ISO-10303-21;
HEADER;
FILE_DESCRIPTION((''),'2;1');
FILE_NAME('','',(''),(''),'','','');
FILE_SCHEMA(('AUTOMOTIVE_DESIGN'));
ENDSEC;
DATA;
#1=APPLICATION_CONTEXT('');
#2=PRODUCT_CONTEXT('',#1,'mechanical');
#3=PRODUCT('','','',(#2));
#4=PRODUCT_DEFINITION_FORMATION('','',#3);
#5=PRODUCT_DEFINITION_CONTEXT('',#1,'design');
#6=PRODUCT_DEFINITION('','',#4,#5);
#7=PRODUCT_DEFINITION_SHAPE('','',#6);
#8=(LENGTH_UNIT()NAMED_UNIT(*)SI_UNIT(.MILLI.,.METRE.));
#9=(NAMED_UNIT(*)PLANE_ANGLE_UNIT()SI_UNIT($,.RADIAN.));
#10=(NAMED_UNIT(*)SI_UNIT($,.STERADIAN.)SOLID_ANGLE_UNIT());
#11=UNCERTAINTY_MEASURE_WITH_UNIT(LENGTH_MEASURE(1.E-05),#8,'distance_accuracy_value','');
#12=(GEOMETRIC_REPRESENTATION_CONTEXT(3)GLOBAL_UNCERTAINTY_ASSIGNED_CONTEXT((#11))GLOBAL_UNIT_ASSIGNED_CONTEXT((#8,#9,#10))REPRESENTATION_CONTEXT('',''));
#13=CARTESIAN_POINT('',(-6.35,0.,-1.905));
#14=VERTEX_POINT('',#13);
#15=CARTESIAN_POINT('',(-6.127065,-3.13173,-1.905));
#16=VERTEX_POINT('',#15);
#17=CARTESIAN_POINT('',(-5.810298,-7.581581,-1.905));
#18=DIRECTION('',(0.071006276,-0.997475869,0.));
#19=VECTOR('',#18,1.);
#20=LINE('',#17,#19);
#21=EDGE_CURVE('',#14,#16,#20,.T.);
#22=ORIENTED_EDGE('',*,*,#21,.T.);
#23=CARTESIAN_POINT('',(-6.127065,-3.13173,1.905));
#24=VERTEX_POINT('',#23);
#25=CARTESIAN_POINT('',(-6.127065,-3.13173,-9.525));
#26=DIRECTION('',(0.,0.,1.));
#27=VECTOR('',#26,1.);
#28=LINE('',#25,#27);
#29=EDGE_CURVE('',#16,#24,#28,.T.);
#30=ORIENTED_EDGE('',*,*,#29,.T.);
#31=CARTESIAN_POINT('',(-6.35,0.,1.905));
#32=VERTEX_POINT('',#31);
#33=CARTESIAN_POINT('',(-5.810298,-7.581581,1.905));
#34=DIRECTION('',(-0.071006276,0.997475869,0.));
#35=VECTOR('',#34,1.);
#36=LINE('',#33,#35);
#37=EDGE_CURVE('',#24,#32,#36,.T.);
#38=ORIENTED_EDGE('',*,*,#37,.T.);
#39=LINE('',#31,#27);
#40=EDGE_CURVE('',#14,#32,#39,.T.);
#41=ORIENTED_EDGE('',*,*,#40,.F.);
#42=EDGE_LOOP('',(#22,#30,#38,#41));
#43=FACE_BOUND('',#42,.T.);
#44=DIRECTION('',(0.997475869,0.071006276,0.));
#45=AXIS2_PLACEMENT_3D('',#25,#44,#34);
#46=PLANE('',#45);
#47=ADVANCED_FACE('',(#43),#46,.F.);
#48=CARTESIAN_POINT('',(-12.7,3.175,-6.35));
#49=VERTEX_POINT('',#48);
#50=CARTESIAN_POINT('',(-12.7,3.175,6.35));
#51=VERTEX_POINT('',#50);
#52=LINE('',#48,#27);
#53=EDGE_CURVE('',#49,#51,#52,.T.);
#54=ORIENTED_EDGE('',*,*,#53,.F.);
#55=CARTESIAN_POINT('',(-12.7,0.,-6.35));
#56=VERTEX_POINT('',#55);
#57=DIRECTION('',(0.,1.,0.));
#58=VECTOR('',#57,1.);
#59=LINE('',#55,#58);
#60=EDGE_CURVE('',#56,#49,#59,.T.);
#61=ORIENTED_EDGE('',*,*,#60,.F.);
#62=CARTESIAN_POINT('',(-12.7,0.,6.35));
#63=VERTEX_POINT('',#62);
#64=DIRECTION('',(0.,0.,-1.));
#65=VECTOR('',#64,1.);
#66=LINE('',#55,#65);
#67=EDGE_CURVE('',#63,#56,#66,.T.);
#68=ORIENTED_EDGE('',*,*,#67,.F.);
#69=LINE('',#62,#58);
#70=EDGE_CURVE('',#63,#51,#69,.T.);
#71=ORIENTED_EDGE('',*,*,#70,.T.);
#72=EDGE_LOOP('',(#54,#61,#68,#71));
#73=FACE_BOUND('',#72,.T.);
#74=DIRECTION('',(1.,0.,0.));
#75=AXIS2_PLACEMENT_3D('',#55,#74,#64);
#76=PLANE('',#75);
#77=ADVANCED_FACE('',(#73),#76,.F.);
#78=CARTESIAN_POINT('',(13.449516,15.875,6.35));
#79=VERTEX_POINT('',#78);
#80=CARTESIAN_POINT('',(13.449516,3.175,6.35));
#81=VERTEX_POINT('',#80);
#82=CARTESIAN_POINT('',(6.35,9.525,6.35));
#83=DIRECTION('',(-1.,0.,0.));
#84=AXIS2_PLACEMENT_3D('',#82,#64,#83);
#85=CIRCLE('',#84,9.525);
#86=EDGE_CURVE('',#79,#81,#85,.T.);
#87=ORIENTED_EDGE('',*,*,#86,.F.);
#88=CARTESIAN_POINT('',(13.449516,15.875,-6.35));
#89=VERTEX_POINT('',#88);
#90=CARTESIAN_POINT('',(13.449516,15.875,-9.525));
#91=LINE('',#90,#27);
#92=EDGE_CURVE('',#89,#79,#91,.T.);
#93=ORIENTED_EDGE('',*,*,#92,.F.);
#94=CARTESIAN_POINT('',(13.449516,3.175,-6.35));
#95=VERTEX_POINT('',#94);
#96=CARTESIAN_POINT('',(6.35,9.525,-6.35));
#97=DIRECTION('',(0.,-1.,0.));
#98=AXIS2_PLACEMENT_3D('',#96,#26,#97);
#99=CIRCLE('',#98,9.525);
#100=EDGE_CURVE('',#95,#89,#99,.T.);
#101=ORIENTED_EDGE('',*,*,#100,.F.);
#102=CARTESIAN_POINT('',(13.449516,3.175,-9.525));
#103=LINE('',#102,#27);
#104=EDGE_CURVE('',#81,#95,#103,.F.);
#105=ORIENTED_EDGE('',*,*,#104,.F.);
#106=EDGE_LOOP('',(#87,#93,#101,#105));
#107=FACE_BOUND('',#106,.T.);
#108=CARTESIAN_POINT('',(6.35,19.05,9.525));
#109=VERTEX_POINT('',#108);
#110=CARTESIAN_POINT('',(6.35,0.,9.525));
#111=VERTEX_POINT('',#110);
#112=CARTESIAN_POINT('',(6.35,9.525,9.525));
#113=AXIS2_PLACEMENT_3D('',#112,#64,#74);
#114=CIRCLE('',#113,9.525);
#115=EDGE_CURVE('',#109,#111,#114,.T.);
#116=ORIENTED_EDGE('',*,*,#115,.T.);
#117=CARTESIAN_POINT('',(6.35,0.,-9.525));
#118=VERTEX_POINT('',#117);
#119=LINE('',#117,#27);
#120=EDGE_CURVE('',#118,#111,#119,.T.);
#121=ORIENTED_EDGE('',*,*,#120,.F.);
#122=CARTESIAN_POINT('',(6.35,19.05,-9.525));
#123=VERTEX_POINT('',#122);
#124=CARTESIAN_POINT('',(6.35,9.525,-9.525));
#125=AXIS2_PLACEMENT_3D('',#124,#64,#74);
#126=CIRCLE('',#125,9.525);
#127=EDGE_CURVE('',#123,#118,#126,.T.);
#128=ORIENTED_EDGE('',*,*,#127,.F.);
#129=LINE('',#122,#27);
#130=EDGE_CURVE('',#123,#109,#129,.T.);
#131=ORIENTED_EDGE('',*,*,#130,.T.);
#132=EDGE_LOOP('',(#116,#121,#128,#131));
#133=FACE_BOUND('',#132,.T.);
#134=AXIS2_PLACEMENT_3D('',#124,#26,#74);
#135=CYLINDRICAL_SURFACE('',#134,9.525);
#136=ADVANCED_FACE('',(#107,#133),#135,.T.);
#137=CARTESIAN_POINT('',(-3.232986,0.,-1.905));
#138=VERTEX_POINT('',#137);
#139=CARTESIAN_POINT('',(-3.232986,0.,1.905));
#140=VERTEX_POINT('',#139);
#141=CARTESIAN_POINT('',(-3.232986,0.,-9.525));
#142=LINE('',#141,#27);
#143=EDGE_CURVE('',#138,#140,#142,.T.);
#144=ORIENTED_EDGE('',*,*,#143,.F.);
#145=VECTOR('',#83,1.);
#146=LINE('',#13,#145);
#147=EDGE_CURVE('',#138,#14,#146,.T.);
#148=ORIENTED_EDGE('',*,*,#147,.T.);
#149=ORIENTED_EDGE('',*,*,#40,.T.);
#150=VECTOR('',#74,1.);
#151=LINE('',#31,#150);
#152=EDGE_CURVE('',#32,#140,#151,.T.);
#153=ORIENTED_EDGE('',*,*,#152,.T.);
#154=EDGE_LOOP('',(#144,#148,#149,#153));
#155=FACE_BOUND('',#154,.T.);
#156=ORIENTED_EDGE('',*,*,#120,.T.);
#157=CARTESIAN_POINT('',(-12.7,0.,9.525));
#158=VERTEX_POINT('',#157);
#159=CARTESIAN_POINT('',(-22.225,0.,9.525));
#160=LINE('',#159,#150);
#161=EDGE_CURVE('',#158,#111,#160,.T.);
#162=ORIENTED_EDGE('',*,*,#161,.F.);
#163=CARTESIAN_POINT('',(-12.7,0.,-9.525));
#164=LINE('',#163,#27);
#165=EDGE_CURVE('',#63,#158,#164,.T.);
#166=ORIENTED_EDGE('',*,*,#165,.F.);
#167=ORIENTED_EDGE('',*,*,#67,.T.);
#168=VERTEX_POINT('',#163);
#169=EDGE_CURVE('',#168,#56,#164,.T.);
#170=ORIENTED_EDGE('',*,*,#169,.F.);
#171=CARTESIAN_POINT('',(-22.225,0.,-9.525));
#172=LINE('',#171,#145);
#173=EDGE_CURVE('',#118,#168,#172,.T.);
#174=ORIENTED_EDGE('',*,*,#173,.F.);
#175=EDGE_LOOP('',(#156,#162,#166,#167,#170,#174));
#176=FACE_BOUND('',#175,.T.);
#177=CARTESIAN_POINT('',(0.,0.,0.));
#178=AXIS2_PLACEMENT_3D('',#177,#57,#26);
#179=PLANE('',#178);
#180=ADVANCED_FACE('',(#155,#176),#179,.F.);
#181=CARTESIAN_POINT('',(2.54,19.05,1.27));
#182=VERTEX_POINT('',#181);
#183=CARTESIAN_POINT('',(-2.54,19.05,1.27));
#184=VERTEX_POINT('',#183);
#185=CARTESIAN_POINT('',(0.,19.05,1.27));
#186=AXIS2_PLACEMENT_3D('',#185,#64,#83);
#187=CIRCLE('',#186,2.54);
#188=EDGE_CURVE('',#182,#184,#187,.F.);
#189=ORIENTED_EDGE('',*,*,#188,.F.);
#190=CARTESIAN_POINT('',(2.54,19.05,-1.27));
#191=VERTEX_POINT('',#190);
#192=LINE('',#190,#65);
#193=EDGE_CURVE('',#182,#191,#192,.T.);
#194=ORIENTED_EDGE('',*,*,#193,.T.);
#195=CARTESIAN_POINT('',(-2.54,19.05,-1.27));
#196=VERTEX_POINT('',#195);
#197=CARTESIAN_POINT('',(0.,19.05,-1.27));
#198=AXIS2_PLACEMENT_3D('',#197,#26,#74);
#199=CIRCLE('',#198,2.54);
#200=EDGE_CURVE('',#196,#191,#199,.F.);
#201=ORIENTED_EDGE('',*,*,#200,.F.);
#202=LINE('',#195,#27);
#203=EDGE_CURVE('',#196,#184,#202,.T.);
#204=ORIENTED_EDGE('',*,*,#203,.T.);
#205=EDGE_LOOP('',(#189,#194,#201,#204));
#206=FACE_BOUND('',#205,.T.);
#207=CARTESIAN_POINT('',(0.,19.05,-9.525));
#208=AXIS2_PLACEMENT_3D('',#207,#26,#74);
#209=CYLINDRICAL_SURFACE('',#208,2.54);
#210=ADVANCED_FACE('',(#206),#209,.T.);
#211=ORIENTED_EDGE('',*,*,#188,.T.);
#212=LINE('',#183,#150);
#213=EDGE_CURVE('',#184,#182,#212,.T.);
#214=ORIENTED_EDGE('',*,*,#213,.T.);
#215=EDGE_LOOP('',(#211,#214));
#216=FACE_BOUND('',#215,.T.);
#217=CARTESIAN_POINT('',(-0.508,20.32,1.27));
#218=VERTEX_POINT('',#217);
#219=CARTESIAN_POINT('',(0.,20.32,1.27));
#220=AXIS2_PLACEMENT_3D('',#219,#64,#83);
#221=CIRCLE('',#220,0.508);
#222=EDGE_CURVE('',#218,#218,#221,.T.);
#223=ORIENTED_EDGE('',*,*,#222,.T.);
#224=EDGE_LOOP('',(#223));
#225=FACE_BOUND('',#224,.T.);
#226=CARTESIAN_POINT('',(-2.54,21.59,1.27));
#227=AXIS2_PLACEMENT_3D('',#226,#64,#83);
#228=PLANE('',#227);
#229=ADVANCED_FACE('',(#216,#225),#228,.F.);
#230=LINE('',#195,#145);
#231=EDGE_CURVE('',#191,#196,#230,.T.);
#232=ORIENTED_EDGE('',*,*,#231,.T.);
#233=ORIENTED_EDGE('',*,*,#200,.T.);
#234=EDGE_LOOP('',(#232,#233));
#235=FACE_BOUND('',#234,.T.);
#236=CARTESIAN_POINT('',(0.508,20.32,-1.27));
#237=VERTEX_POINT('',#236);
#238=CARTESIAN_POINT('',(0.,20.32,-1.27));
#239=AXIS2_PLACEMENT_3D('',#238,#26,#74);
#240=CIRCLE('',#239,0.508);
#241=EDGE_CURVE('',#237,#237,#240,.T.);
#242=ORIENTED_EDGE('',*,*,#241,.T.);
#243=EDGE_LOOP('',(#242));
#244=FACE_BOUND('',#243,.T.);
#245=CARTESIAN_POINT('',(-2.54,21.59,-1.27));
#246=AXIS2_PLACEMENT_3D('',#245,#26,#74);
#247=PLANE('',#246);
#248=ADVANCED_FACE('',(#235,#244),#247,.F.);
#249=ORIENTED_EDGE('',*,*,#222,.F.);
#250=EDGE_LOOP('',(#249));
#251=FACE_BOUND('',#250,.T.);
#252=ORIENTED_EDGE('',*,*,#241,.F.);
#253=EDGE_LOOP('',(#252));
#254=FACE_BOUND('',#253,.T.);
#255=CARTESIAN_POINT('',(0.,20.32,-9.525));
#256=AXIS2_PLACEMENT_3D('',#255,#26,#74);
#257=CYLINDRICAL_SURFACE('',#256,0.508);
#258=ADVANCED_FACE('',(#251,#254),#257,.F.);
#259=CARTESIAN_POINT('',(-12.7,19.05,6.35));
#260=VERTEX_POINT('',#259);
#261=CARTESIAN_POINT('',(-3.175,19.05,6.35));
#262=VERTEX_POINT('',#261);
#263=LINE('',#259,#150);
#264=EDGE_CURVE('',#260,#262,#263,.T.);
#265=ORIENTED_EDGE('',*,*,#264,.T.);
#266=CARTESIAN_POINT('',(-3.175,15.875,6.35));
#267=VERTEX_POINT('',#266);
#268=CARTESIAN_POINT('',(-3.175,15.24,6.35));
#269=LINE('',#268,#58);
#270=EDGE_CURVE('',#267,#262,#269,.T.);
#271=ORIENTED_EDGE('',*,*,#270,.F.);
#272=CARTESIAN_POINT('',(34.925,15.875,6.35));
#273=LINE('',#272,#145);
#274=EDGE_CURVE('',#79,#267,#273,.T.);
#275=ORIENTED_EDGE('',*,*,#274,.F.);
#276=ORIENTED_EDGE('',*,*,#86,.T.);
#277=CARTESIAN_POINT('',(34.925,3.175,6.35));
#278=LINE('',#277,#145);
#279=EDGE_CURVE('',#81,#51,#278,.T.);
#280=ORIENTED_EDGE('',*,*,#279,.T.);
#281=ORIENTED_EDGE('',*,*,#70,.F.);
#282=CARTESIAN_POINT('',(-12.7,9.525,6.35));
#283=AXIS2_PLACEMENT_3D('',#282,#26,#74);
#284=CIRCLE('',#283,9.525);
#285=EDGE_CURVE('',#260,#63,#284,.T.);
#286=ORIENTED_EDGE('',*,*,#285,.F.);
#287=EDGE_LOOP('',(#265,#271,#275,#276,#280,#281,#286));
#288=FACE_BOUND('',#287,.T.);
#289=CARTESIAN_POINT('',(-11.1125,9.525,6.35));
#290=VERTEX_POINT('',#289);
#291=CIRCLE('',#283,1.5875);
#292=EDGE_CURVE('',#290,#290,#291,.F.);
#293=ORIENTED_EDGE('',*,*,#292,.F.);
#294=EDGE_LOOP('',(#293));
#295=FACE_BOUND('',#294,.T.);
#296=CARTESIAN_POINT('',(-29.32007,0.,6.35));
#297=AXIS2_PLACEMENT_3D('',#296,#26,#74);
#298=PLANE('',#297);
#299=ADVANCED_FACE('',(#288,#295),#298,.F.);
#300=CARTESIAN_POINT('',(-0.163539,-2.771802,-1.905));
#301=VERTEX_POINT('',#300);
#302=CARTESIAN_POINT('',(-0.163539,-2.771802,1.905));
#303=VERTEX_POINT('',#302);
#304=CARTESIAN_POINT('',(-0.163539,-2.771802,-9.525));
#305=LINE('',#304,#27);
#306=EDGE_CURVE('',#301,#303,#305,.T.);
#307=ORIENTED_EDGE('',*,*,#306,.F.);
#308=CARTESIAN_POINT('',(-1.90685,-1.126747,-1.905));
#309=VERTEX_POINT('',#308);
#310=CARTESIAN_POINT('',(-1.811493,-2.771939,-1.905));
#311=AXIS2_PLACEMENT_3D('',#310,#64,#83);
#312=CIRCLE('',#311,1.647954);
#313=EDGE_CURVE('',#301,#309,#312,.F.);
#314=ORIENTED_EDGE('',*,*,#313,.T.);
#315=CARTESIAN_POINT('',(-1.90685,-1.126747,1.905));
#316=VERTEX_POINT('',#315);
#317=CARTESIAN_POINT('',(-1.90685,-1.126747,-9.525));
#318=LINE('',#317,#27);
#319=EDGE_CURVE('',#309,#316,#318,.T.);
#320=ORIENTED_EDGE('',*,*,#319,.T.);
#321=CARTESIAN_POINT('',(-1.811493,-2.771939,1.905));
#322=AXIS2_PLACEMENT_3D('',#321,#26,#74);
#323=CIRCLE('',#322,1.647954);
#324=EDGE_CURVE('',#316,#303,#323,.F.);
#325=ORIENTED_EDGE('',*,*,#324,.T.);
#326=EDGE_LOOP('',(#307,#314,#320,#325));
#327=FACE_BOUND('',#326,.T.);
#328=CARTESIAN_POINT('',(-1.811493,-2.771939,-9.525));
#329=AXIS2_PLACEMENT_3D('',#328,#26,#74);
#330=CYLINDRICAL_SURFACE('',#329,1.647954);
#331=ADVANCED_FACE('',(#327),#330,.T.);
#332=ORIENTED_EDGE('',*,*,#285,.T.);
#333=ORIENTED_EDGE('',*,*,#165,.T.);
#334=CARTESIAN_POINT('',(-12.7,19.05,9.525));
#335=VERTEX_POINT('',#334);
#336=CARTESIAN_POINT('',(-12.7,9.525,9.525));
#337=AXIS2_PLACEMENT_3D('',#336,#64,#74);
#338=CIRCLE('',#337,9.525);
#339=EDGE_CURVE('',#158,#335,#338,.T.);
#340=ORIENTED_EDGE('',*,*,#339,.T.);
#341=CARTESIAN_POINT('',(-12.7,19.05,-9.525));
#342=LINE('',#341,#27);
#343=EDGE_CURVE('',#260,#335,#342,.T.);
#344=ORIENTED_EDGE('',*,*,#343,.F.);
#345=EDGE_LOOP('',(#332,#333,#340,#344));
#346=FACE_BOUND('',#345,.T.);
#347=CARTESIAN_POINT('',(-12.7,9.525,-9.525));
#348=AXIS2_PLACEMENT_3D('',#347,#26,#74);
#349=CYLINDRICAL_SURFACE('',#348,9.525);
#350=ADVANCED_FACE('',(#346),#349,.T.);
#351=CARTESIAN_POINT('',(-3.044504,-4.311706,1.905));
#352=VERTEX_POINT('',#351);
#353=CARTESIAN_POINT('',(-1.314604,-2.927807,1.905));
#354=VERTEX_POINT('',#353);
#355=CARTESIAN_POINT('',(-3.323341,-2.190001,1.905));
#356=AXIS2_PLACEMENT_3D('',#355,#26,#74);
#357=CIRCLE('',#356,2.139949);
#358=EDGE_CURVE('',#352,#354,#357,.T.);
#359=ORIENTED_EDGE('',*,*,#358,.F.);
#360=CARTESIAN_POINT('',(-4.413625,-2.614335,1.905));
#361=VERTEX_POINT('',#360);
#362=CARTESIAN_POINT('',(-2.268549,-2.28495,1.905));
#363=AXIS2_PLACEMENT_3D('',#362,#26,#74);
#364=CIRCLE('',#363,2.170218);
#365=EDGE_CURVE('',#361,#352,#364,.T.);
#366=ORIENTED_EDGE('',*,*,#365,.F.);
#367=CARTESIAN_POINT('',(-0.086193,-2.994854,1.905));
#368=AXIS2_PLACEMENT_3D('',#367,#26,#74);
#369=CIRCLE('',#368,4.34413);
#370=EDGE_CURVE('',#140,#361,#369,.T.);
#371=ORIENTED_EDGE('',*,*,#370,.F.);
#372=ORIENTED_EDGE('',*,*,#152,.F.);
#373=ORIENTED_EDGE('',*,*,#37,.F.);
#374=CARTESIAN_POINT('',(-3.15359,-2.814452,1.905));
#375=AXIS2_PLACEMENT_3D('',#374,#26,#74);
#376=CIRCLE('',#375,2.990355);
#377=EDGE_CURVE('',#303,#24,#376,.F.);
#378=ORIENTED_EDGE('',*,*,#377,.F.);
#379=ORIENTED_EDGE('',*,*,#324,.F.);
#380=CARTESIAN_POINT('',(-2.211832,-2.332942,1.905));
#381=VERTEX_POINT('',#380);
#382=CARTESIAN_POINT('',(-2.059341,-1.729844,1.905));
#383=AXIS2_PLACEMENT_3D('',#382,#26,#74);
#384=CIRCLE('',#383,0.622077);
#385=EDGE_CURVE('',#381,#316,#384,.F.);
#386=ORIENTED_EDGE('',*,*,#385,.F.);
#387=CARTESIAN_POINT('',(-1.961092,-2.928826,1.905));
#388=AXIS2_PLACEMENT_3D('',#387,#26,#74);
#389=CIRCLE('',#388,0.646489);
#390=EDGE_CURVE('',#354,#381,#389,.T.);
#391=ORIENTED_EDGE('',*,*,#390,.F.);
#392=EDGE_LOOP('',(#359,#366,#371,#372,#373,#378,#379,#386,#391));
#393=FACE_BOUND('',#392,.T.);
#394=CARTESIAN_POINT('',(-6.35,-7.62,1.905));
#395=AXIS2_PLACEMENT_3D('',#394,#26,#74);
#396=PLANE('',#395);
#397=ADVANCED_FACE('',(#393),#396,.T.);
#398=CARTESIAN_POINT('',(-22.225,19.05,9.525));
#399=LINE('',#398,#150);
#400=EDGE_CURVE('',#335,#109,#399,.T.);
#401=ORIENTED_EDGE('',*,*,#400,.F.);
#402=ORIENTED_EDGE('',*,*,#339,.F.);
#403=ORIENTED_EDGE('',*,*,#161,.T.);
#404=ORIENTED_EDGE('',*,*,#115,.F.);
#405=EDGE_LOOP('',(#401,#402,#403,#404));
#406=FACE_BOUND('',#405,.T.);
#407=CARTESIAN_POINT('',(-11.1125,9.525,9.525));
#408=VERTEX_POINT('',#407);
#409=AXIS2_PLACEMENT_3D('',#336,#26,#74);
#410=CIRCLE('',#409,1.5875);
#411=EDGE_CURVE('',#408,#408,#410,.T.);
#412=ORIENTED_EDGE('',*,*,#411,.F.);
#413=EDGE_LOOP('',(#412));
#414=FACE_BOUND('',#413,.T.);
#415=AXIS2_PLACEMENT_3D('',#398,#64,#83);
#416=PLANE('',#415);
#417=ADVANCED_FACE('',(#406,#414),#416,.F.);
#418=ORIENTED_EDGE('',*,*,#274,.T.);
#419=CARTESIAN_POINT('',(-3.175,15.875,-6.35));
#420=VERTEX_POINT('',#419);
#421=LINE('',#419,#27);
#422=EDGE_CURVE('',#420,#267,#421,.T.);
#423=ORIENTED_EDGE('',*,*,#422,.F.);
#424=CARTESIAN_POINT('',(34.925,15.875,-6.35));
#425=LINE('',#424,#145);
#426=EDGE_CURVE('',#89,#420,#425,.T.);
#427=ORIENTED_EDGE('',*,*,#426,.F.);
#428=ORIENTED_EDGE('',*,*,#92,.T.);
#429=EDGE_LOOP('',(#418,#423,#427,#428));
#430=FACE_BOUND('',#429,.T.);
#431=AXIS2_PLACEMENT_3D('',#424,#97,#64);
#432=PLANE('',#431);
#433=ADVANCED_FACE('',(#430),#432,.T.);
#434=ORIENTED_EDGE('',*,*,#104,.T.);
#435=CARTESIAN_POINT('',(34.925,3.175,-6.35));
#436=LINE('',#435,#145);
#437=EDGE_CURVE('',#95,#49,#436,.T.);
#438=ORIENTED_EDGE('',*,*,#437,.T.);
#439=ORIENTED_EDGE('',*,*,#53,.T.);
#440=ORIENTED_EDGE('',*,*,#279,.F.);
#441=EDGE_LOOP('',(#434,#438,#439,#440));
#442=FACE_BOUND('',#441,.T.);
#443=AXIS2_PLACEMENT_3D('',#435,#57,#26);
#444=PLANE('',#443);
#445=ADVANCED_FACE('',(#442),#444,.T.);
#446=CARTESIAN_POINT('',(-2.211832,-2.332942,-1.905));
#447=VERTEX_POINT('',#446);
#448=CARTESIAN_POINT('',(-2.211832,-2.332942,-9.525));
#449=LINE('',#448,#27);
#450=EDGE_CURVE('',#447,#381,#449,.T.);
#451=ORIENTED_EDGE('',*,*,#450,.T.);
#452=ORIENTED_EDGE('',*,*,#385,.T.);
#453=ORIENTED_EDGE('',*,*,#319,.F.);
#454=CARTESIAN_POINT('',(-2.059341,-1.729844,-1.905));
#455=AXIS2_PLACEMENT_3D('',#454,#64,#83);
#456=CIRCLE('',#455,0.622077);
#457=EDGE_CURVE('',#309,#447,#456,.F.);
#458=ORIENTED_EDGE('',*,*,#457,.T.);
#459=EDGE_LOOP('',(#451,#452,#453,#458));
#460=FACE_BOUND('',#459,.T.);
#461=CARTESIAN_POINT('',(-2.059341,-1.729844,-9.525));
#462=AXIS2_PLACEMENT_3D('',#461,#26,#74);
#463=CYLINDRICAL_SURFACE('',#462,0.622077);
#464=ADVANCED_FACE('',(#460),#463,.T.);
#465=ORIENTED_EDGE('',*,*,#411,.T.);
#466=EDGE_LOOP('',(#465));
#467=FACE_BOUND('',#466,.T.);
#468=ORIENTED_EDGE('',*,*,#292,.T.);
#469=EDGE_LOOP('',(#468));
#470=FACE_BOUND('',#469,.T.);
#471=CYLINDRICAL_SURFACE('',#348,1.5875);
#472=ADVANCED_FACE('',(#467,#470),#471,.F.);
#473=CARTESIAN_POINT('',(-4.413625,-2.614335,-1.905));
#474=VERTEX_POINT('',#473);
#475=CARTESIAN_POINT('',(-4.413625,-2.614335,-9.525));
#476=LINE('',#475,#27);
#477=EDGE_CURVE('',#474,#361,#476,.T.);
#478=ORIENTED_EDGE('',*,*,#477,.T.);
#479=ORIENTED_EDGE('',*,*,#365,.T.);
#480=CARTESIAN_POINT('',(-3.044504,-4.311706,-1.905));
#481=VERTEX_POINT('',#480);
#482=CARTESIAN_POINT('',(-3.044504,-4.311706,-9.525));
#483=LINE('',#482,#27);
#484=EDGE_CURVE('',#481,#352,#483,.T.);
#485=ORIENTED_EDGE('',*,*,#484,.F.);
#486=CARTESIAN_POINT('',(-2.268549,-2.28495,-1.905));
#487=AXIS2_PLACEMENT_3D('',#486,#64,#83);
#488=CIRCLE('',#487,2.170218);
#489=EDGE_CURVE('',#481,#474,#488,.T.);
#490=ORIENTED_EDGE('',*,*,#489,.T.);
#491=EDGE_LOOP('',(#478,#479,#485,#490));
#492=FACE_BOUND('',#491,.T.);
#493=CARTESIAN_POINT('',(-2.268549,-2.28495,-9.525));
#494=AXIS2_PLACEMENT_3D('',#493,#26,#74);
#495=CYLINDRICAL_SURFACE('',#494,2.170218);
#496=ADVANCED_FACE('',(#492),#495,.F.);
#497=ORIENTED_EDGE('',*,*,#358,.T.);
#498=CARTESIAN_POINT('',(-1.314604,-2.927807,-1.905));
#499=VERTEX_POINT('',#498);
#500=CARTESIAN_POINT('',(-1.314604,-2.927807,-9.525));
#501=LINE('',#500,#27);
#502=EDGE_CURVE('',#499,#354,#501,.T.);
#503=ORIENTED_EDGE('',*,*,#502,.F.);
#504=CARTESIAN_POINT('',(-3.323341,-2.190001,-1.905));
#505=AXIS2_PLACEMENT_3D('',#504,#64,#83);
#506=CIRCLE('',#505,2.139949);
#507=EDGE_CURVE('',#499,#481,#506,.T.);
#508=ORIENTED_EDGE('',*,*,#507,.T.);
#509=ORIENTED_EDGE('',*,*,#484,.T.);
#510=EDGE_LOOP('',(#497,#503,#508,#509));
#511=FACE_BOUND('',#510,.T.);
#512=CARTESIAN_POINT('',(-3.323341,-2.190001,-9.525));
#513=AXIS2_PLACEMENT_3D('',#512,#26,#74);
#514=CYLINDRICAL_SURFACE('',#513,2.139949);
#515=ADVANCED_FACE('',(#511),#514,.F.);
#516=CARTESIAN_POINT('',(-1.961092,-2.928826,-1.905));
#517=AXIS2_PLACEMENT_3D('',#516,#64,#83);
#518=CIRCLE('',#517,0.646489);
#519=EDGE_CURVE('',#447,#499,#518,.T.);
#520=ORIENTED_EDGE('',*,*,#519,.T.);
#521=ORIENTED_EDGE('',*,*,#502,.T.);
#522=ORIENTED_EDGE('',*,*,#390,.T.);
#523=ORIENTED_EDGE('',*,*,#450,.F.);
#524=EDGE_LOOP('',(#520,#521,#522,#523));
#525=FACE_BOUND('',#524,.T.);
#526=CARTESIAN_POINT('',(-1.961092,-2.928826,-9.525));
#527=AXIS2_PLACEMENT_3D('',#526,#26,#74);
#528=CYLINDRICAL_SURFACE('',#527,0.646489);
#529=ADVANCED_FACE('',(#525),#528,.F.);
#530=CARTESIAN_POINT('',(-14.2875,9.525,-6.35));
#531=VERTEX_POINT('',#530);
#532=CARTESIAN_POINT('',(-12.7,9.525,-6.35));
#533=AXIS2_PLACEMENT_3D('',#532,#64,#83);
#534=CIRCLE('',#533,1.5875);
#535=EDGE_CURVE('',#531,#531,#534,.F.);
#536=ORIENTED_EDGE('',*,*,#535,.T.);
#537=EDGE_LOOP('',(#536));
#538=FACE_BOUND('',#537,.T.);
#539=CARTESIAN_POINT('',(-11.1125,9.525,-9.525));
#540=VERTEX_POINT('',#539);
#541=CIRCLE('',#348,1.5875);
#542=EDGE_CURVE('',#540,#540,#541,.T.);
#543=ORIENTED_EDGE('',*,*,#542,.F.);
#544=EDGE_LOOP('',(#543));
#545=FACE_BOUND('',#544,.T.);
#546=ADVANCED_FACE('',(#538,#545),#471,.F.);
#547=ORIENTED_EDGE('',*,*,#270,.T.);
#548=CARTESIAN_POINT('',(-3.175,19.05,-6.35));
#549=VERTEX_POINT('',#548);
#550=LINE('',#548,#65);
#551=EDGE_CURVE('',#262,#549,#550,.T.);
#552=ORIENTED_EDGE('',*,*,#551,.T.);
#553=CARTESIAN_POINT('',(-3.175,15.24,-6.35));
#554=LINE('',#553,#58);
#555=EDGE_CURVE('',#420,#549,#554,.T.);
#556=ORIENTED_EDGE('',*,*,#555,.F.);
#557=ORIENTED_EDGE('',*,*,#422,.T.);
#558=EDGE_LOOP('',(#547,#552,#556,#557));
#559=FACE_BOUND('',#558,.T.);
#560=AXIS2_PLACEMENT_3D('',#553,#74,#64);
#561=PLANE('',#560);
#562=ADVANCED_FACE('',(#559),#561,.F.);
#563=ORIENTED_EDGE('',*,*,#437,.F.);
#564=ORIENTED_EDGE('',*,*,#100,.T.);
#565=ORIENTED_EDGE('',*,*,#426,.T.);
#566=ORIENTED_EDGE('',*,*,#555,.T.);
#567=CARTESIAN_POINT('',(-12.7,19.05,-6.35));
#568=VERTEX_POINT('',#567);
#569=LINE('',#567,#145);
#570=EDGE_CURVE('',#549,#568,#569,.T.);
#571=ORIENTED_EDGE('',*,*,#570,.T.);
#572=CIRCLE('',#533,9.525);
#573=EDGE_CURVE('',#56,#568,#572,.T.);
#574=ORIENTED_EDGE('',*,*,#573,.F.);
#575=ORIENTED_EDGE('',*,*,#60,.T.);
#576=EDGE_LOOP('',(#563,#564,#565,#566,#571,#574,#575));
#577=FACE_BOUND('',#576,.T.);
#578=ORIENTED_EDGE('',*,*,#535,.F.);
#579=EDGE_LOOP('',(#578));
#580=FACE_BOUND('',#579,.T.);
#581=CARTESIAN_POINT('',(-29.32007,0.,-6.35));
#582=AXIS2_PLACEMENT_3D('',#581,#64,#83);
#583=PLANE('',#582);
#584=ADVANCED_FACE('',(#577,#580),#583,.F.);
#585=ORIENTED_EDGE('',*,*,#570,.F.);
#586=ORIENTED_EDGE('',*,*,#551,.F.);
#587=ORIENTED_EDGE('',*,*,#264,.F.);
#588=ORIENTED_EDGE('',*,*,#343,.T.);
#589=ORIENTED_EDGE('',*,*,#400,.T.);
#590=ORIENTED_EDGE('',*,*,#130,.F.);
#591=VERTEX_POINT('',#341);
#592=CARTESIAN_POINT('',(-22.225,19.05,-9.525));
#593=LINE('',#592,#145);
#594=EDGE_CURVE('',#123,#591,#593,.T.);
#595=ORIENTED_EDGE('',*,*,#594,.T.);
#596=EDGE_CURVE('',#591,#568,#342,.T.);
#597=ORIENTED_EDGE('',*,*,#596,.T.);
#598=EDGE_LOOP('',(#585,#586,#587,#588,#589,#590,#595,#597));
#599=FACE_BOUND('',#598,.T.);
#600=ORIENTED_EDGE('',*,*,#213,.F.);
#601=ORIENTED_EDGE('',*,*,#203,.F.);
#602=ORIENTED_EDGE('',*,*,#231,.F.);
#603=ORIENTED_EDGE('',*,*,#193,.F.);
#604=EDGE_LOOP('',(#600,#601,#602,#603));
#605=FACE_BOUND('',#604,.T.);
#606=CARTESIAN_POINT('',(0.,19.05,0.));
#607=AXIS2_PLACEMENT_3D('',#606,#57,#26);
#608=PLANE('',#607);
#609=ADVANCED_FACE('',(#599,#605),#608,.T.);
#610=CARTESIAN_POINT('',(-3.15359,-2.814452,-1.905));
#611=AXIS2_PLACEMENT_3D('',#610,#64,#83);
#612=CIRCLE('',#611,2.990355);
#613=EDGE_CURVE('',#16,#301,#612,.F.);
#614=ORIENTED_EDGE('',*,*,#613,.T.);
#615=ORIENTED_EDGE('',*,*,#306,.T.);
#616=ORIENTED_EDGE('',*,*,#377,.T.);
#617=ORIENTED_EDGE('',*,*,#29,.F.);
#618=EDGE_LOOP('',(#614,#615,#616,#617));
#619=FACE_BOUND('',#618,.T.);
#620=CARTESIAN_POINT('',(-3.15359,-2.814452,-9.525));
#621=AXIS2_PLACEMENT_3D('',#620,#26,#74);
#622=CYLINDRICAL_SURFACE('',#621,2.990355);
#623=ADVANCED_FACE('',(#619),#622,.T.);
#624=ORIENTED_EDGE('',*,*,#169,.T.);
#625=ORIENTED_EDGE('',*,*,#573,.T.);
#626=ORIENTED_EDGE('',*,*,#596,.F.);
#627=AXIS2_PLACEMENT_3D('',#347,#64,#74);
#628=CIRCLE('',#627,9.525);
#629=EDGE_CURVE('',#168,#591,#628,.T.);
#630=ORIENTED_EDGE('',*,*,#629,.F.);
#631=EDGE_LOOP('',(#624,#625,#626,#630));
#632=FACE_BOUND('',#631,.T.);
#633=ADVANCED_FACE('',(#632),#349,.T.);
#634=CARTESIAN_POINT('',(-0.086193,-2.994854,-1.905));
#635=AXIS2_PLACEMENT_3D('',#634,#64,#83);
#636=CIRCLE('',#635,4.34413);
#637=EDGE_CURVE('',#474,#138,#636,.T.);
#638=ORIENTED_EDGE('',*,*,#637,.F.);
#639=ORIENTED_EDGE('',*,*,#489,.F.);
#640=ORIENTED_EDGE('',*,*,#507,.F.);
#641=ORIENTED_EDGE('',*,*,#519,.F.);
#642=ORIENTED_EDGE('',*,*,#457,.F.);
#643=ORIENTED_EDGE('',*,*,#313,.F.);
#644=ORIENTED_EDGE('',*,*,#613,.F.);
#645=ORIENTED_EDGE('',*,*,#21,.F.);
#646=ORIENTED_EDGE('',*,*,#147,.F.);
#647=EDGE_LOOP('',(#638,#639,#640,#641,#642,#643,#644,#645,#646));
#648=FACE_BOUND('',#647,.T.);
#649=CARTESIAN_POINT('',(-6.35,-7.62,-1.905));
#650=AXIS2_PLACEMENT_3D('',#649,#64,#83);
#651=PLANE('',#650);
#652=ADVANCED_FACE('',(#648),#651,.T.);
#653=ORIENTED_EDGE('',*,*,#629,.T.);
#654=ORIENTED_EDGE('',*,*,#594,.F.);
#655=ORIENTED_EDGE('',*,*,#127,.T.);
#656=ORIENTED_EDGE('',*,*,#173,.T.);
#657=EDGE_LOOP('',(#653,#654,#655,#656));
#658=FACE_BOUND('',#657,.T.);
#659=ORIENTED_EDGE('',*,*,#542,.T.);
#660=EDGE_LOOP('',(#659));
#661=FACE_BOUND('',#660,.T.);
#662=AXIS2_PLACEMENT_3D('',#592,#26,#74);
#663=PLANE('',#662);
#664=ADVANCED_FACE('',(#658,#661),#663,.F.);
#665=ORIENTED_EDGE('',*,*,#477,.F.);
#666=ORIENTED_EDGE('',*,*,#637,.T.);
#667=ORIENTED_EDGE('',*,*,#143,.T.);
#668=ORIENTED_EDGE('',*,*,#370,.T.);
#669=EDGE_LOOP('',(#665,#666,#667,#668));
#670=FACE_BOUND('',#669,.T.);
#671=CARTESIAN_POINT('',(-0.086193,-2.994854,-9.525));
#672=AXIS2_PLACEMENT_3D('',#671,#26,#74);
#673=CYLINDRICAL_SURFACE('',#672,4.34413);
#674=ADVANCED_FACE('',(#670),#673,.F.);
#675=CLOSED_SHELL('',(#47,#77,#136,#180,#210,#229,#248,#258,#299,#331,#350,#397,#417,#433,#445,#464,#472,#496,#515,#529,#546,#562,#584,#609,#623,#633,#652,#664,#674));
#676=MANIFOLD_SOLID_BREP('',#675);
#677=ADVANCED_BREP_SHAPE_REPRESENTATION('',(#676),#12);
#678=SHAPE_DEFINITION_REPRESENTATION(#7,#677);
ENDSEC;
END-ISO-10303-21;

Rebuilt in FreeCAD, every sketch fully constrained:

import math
import FreeCAD as App
import Part
import Sketcher
Q = App.Units.Quantity

doc = App.newDocument("Part")
params = doc.addObject("Spreadsheet::Sheet", "Params")
for row, (alias, value) in enumerate([
    ("sketch1_width", "1.5 in"),
    ("sketch1_height", "0.75 in"),
    ("pad1_length", "0.75 in"),
    ("sketch2_diameter", "0.125 in"),
    ("sketch2_radius", "0.375 in"),
    ("pocket1_length", "0.75 in"),
    ("sketch3_height", "0.5 in"),
    ("pocket2_length", "0.75 in"),
    ("sketch4_width", "0.5 in"),
    ("pocket3_length", "2 in"),
    ("sketch5_height", "0.15 in"),
    ("pad2_length", "0.3 in"),
    ("pocket4_length", "0.75 in"),
    ("sketch7_width", "0.2 in"),
    ("sketch7_height", "0.1 in"),
    ("pad3_length", "0.1 in"),
    ("sketch8_radius", "0.1 in"),
    ("sketch8_diameter", "0.04 in"),
    ("pocket5_length", "0.75 in"),
    ("sketch9_height", "0.5 in"),
    ("sketch9_width", "0.375 in"),
    ("pocket6_length", "0.15 in"),
], start=1):
    params.set(f"A{row}", alias)
    params.set(f"B{row}", "=" + value)
    params.setAlias(f"B{row}", alias)

body = doc.addObject("PartDesign::Body", "Body")

# Sketch on XZ plane
sketch1 = body.newObject("Sketcher::SketchObject", "Sketch")
sketch1.AttachmentSupport = (doc.getObject("XZ_Plane"), [""])
sketch1.MapMode = "FlatFace"
sketch1.addGeometry([
    Part.LineSegment(App.Vector(-22.225, -9.525, 0), App.Vector(-22.225, 9.525, 0)),
    Part.LineSegment(App.Vector(-22.225, 9.525, 0), App.Vector(15.875, 9.525, 0)),
    Part.LineSegment(App.Vector(15.875, 9.525, 0), App.Vector(15.875, -9.525, 0)),
    Part.LineSegment(App.Vector(15.875, -9.525, 0), App.Vector(-22.225, -9.525, 0)),
], False)
sketch1.addConstraint([
    Sketcher.Constraint("Coincident", 0, 2, 1, 1),
    Sketcher.Constraint("Coincident", 1, 2, 2, 1),
    Sketcher.Constraint("Coincident", 2, 2, 3, 1),
    Sketcher.Constraint("Coincident", 3, 2, 0, 1),
    Sketcher.Constraint("Vertical", 0),
    Sketcher.Constraint("Horizontal", 1),
    Sketcher.Constraint("Vertical", 2),
    Sketcher.Constraint("Horizontal", 3),
    Sketcher.Constraint("DistanceX", 1, 1, 1, 2, Q("1.5 in")),
    Sketcher.Constraint("DistanceY", 0, 1, 0, 2, Q("0.75 in")),
    Sketcher.Constraint("DistanceX", 0, 2, -1, 1, Q("0.875 in")),
    Sketcher.Constraint("DistanceY", -1, 1, 0, 2, Q("0.375 in")),
])
sketch1.setExpression("Constraints[8]", "Params.sketch1_width")
sketch1.setExpression("Constraints[9]", "Params.sketch1_height")
pad1 = body.newObject("PartDesign::Pad", "Pad")
pad1.Profile = sketch1
pad1.setExpression("Length", "Params.pad1_length")
pad1.Reversed = True

# Sketch on XY plane
sketch2 = body.newObject("Sketcher::SketchObject", "Sketch001")
sketch2.AttachmentSupport = (doc.getObject("XY_Plane"), [""])
sketch2.MapMode = "FlatFace"
sketch2.AttachmentOffset = App.Placement(App.Vector(0, 0, 0.375 * 25.4), App.Rotation())
sketch2.addGeometry([
    Part.Circle(App.Vector(-12.7, 9.525, 0), App.Vector(0, 0, 1), 1.5875),  # 0
    Part.ArcOfCircle(Part.Circle(App.Vector(-12.7, 9.525, 0), App.Vector(0, 0, 1), 9.525), math.radians(90), math.radians(270)),  # 1
    Part.ArcOfCircle(Part.Circle(App.Vector(-21.018848, 9.525, 0), App.Vector(0, 0, 1), 12.646298), math.radians(48.867016), math.radians(311.132984)),  # 2
    Part.ArcOfCircle(Part.Circle(App.Vector(6.35, 9.525, 0), App.Vector(0, 0, 1), 9.525), math.radians(-90), math.radians(90)),  # 3
    Part.ArcOfCircle(Part.Circle(App.Vector(13.209964, 9.525, 0), App.Vector(0, 0, 1), 11.738174), math.radians(-125.761667), math.radians(125.761667)),  # 4
], False)
sketch2.addConstraint([
    Sketcher.Constraint("Coincident", 1, 1, 2, 1),
    Sketcher.Constraint("Coincident", 2, 2, 1, 2),
    Sketcher.Constraint("Coincident", 3, 1, 4, 1),
    Sketcher.Constraint("Coincident", 4, 2, 3, 2),
    Sketcher.Constraint("Coincident", 1, 3, 0, 3),
    Sketcher.Constraint("Equal", 1, 3),
    Sketcher.Constraint("PointOnObject", 2, 2, -1),
    Sketcher.Constraint("PointOnObject", 3, 1, -1),
    Sketcher.Constraint("Horizontal", 1, 3, 2, 3),
    Sketcher.Constraint("Horizontal", 3, 3, 4, 3),
    Sketcher.Constraint("Vertical", 0, 3, 1, 1),
    Sketcher.Constraint("Diameter", 0, Q("0.125 in")),
    Sketcher.Constraint("Radius", 1, Q("0.375 in")),
    Sketcher.Constraint("DistanceX", 0, 3, -1, 1, Q("0.5 in")),
    Sketcher.Constraint("DistanceX", -1, 1, 3, 3, Q("0.25 in")),
    Sketcher.Constraint("DistanceX", -1, 1, 3, 1, Q("0.25 in")),
    Sketcher.Constraint("Radius", 2, Q("12.646298 mm")),
    Sketcher.Constraint("Radius", 4, Q("11.738174 mm")),
])
sketch2.setExpression("Constraints[11]", "Params.sketch2_diameter")
sketch2.setExpression("Constraints[12]", "Params.sketch2_radius")
pocket1 = body.newObject("PartDesign::Pocket", "Pocket")
pocket1.Profile = sketch2
pocket1.setExpression("Length", "Params.pocket1_length")

# Sketch on XZ plane
sketch3 = body.newObject("Sketcher::SketchObject", "Sketch002")
sketch3.AttachmentSupport = (doc.getObject("XZ_Plane"), [""])
sketch3.MapMode = "FlatFace"
sketch3.AttachmentOffset = App.Placement(App.Vector(0, 0, -0.75 * 25.4), App.Rotation())
sketch3.addGeometry([
    Part.LineSegment(App.Vector(-29.32007, -6.35, 0), App.Vector(-29.32007, 6.35, 0)),
    Part.LineSegment(App.Vector(-29.32007, 6.35, 0), App.Vector(-12.7, 6.35, 0)),
    Part.LineSegment(App.Vector(-12.7, 6.35, 0), App.Vector(-12.7, -6.35, 0)),
    Part.LineSegment(App.Vector(-12.7, -6.35, 0), App.Vector(-29.32007, -6.35, 0)),
], False)
sketch3.addConstraint([
    Sketcher.Constraint("Coincident", 0, 2, 1, 1),
    Sketcher.Constraint("Coincident", 1, 2, 2, 1),
    Sketcher.Constraint("Coincident", 2, 2, 3, 1),
    Sketcher.Constraint("Coincident", 3, 2, 0, 1),
    Sketcher.Constraint("Vertical", 0),
    Sketcher.Constraint("Horizontal", 1),
    Sketcher.Constraint("Vertical", 2),
    Sketcher.Constraint("Horizontal", 3),
    Sketcher.Constraint("DistanceY", 0, 1, 0, 2, Q("0.5 in")),
    Sketcher.Constraint("DistanceX", 1, 2, -1, 1, Q("0.5 in")),
    Sketcher.Constraint("DistanceY", -1, 1, 0, 2, Q("0.25 in")),
    Sketcher.Constraint("DistanceX", 1, 1, 1, 2, Q("16.62007 mm")),
])
sketch3.setExpression("Constraints[8]", "Params.sketch3_height")
pocket2 = body.newObject("PartDesign::Pocket", "Pocket001")
pocket2.Profile = sketch3
pocket2.setExpression("Length", "Params.pocket2_length")
pocket2.Reversed = True

# Sketch on YZ plane
sketch4 = body.newObject("Sketcher::SketchObject", "Sketch003")
sketch4.AttachmentSupport = (doc.getObject("YZ_Plane"), [""])
sketch4.MapMode = "FlatFace"
sketch4.AttachmentOffset = App.Placement(App.Vector(0, 0, -0.625 * 25.4), App.Rotation())
sketch4.addGeometry([
    Part.LineSegment(App.Vector(15.875, 6.35, 0), App.Vector(3.175, 6.35, 0)),
    Part.LineSegment(App.Vector(3.175, 6.35, 0), App.Vector(3.175, -6.35, 0)),
    Part.LineSegment(App.Vector(3.175, -6.35, 0), App.Vector(15.875, -6.35, 0)),
    Part.LineSegment(App.Vector(15.875, -6.35, 0), App.Vector(15.875, 6.35, 0)),
], False)
sketch4.addConstraint([
    Sketcher.Constraint("Coincident", 0, 2, 1, 1),
    Sketcher.Constraint("Coincident", 1, 2, 2, 1),
    Sketcher.Constraint("Coincident", 2, 2, 3, 1),
    Sketcher.Constraint("Coincident", 3, 2, 0, 1),
    Sketcher.Constraint("Horizontal", 0),
    Sketcher.Constraint("Vertical", 1),
    Sketcher.Constraint("Horizontal", 2),
    Sketcher.Constraint("Vertical", 3),
    Sketcher.Constraint("Equal", 2, 1),
    Sketcher.Constraint("DistanceX", 0, 2, 0, 1, Q("0.5 in")),
    Sketcher.Constraint("DistanceY", -1, 1, 0, 2, Q("0.25 in")),
    Sketcher.Constraint("DistanceX", -1, 1, 0, 2, Q("0.125 in")),
])
sketch4.setExpression("Constraints[9]", "Params.sketch4_width")
pocket3 = body.newObject("PartDesign::Pocket", "Pocket002")
pocket3.Profile = sketch4
pocket3.setExpression("Length", "Params.pocket3_length")
pocket3.Reversed = True

# Sketch on XZ plane
sketch5 = body.newObject("Sketcher::SketchObject", "Sketch004")
sketch5.AttachmentSupport = (doc.getObject("XZ_Plane"), [""])
sketch5.MapMode = "FlatFace"
sketch5.addGeometry([
    Part.LineSegment(App.Vector(-6.35, -1.905, 0), App.Vector(-6.35, 1.905, 0)),
    Part.LineSegment(App.Vector(-6.35, 1.905, 0), App.Vector(1.31057, 1.905, 0)),
    Part.LineSegment(App.Vector(1.31057, 1.905, 0), App.Vector(1.31057, -1.905, 0)),
    Part.LineSegment(App.Vector(1.31057, -1.905, 0), App.Vector(-6.35, -1.905, 0)),
], False)
sketch5.addConstraint([
    Sketcher.Constraint("Coincident", 0, 2, 1, 1),
    Sketcher.Constraint("Coincident", 1, 2, 2, 1),
    Sketcher.Constraint("Coincident", 2, 2, 3, 1),
    Sketcher.Constraint("Coincident", 3, 2, 0, 1),
    Sketcher.Constraint("Vertical", 0),
    Sketcher.Constraint("Horizontal", 1),
    Sketcher.Constraint("Vertical", 2),
    Sketcher.Constraint("Horizontal", 3),
    Sketcher.Constraint("DistanceY", 0, 1, 0, 2, Q("0.15 in")),
    Sketcher.Constraint("DistanceX", 0, 2, -1, 1, Q("0.25 in")),
    Sketcher.Constraint("DistanceY", -1, 1, 0, 2, Q("0.075 in")),
    Sketcher.Constraint("DistanceX", 1, 1, 1, 2, Q("7.66057 mm")),
])
sketch5.setExpression("Constraints[8]", "Params.sketch5_height")
pad2 = body.newObject("PartDesign::Pad", "Pad001")
pad2.Profile = sketch5
pad2.setExpression("Length", "Params.pad2_length")

# Sketch on XY plane
sketch6 = body.newObject("Sketcher::SketchObject", "Sketch005")
sketch6.AttachmentSupport = (doc.getObject("XY_Plane"), [""])
sketch6.MapMode = "FlatFace"
sketch6.AttachmentOffset = App.Placement(App.Vector(0, 0, 0.375 * 25.4), App.Rotation())
sketch6.addGeometry([
    Part.LineSegment(App.Vector(-6.858, 0, 0), App.Vector(-7.080935, -3.13173, 0)),  # 0
    Part.ArcOfCircle(Part.Circle(App.Vector(-10.05441, -2.814452, 0), App.Vector(0, 0, 1), 2.990355), math.radians(-81.177754), math.radians(-6.090574)),  # 1
    Part.ArcOfCircle(Part.Circle(App.Vector(-10.05441, -2.814452, 0), App.Vector(0, 0, 1), 2.990355), math.radians(179.182795), math.radians(278.822246)),  # 2
    Part.ArcOfCircle(Part.Circle(App.Vector(-11.396507, -2.771939, 0), App.Vector(0, 0, 1), 1.647954), math.radians(86.682793), math.radians(179.995226)),  # 3
    Part.ArcOfCircle(Part.Circle(App.Vector(-11.148659, -1.729844, 0), App.Vector(0, 0, 1), 0.622077), math.radians(-75.810374), math.radians(104.189626)),  # 4
    Part.ArcOfCircle(Part.Circle(App.Vector(-11.246908, -2.928826, 0), App.Vector(0, 0, 1), 0.646489), math.radians(67.179321), math.radians(179.909719)),  # 5
    Part.ArcOfCircle(Part.Circle(App.Vector(-9.884659, -2.190001, 0), App.Vector(0, 0, 1), 2.139949), math.radians(-159.831802), math.radians(-97.486985)),  # 6
    Part.ArcOfCircle(Part.Circle(App.Vector(-10.939451, -2.28495, 0), App.Vector(0, 0, 1), 2.170218), math.radians(-69.050372), math.radians(-8.729807)),  # 7
    Part.ArcOfCircle(Part.Circle(App.Vector(-13.121807, -2.994854, 0), App.Vector(0, 0, 1), 4.34413), math.radians(5.0252), math.radians(43.582843)),  # 8
    Part.LineSegment(App.Vector(-9.975014, 0, 0), App.Vector(-14.771032, 0, 0)),  # 9
    Part.LineSegment(App.Vector(-14.771032, 0, 0), App.Vector(-14.771032, -7.767816, 0)),  # 10
    Part.LineSegment(App.Vector(-14.771032, -7.767816, 0), App.Vector(-6.858, -7.767816, 0)),  # 11
    Part.LineSegment(App.Vector(-6.858, -7.767816, 0), App.Vector(-6.858, 0, 0)),  # 12
    Part.LineSegment(App.Vector(1.563032, 0, 0), App.Vector(-3.232986, 0, 0)),  # 13
    Part.ArcOfCircle(Part.Circle(App.Vector(-0.086193, -2.994854, 0), App.Vector(0, 0, 1), 4.34413), math.radians(136.417157), math.radians(174.9748)),  # 14
    Part.ArcOfCircle(Part.Circle(App.Vector(-2.268549, -2.28495, 0), App.Vector(0, 0, 1), 2.170218), math.radians(-171.270193), math.radians(-110.949628)),  # 15
    Part.ArcOfCircle(Part.Circle(App.Vector(-3.323341, -2.190001, 0), App.Vector(0, 0, 1), 2.139949), math.radians(-82.513015), math.radians(-20.168198)),  # 16
    Part.ArcOfCircle(Part.Circle(App.Vector(-1.961092, -2.928826, 0), App.Vector(0, 0, 1), 0.646489), math.radians(0.090281), math.radians(112.820679)),  # 17
    Part.ArcOfCircle(Part.Circle(App.Vector(-2.059341, -1.729844, 0), App.Vector(0, 0, 1), 0.622077), math.radians(75.810374), math.radians(255.810374)),  # 18
    Part.ArcOfCircle(Part.Circle(App.Vector(-1.811493, -2.771939, 0), App.Vector(0, 0, 1), 1.647954), math.radians(0.004774), math.radians(93.317207)),  # 19
    Part.ArcOfCircle(Part.Circle(App.Vector(-3.15359, -2.814452, 0), App.Vector(0, 0, 1), 2.990355), math.radians(-98.822246), math.radians(0.817205)),  # 20
    Part.ArcOfCircle(Part.Circle(App.Vector(-3.15359, -2.814452, 0), App.Vector(0, 0, 1), 2.990355), math.radians(-173.909426), math.radians(-98.822246)),  # 21
    Part.LineSegment(App.Vector(-6.127065, -3.13173, 0), App.Vector(-6.35, 0, 0)),  # 22
    Part.LineSegment(App.Vector(-6.35, 0, 0), App.Vector(-6.35, -7.767816, 0)),  # 23
    Part.LineSegment(App.Vector(-6.35, -7.767816, 0), App.Vector(1.563032, -7.767816, 0)),  # 24
    Part.LineSegment(App.Vector(1.563032, -7.767816, 0), App.Vector(1.563032, 0, 0)),  # 25
], False)
sketch6.addConstraint([
    Sketcher.Constraint("Coincident", 0, 2, 1, 2),
    Sketcher.Constraint("Tangent", 1, 1, 2, 2),
    Sketcher.Constraint("Coincident", 2, 1, 3, 2),
    Sketcher.Constraint("Coincident", 3, 1, 4, 2),
    Sketcher.Constraint("Coincident", 4, 1, 5, 1),
    Sketcher.Constraint("Coincident", 5, 2, 6, 1),
    Sketcher.Constraint("Coincident", 6, 2, 7, 1),
    Sketcher.Constraint("Coincident", 7, 2, 8, 1),
    Sketcher.Constraint("Coincident", 8, 2, 9, 1),
    Sketcher.Constraint("Coincident", 9, 2, 10, 1),
    Sketcher.Constraint("Coincident", 10, 2, 11, 1),
    Sketcher.Constraint("Coincident", 11, 2, 12, 1),
    Sketcher.Constraint("Coincident", 12, 2, 0, 1),
    Sketcher.Constraint("Coincident", 13, 2, 14, 1),
    Sketcher.Constraint("Coincident", 14, 2, 15, 1),
    Sketcher.Constraint("Coincident", 15, 2, 16, 1),
    Sketcher.Constraint("Coincident", 16, 2, 17, 1),
    Sketcher.Constraint("Coincident", 17, 2, 18, 2),
    Sketcher.Constraint("Coincident", 18, 1, 19, 2),
    Sketcher.Constraint("Coincident", 19, 1, 20, 2),
    Sketcher.Constraint("Tangent", 20, 1, 21, 2),
    Sketcher.Constraint("Coincident", 21, 1, 22, 1),
    Sketcher.Constraint("Coincident", 22, 2, 23, 1),
    Sketcher.Constraint("Coincident", 23, 2, 24, 1),
    Sketcher.Constraint("Coincident", 24, 2, 25, 1),
    Sketcher.Constraint("Coincident", 25, 2, 13, 1),
    Sketcher.Constraint("Horizontal", 9),
    Sketcher.Constraint("Vertical", 10),
    Sketcher.Constraint("Horizontal", 11),
    Sketcher.Constraint("Vertical", 12),
    Sketcher.Constraint("Horizontal", 13),
    Sketcher.Constraint("Vertical", 23),
    Sketcher.Constraint("Horizontal", 24),
    Sketcher.Constraint("Vertical", 25),
    Sketcher.Constraint("Equal", 1, 2),
    Sketcher.Constraint("Equal", 8, 14),
    Sketcher.Constraint("Equal", 7, 15),
    Sketcher.Constraint("Equal", 6, 16),
    Sketcher.Constraint("Equal", 5, 17),
    Sketcher.Constraint("Equal", 4, 18),
    Sketcher.Constraint("Equal", 3, 19),
    Sketcher.Constraint("Equal", 2, 20),
    Sketcher.Constraint("Equal", 20, 21),
    Sketcher.Constraint("PointOnObject", 8, 2, -1),
    Sketcher.Constraint("PointOnObject", 12, 2, -1),
    Sketcher.Constraint("PointOnObject", 13, 2, -1),
    Sketcher.Constraint("PointOnObject", 22, 2, -1),
    Sketcher.Constraint("Horizontal", 8, 3, 14, 3),
    Sketcher.Constraint("Horizontal", 7, 3, 15, 3),
    Sketcher.Constraint("Horizontal", 6, 3, 16, 3),
    Sketcher.Constraint("Horizontal", 5, 3, 17, 3),
    Sketcher.Constraint("Horizontal", 4, 3, 18, 3),
    Sketcher.Constraint("Horizontal", 3, 3, 19, 3),
    Sketcher.Constraint("Horizontal", 2, 3, 20, 3),
    Sketcher.Constraint("Horizontal", 7, 2, 14, 2),
    Sketcher.Constraint("Horizontal", 6, 2, 15, 2),
    Sketcher.Constraint("Horizontal", 5, 2, 16, 2),
    Sketcher.Constraint("Horizontal", 4, 1, 17, 2),
    Sketcher.Constraint("Horizontal", 3, 1, 18, 1),
    Sketcher.Constraint("Horizontal", 2, 1, 19, 1),
    Sketcher.Constraint("Horizontal", 1, 1, 20, 1),
    Sketcher.Constraint("Horizontal", 0, 2, 21, 1),
    Sketcher.Constraint("Horizontal", 11, 2, 23, 2),
    Sketcher.Constraint("Equal", 9, 13),
    Sketcher.Constraint("Equal", 11, 24),
    Sketcher.Constraint("DistanceX", 11, 2, -1, 1, Q("0.27 in")),
    Sketcher.Constraint("DistanceX", 22, 2, -1, 1, Q("0.25 in")),
    Sketcher.Constraint("Radius", 5, Q("0.646489 mm")),
    Sketcher.Constraint("Radius", 6, Q("2.139949 mm")),
    Sketcher.Constraint("Radius", 7, Q("2.170218 mm")),
    Sketcher.Constraint("Radius", 8, Q("4.34413 mm")),
    Sketcher.Constraint("Radius", 1, Q("2.990355 mm")),
    Sketcher.Constraint("Radius", 3, Q("1.647954 mm")),
    Sketcher.Constraint("Radius", 4, Q("0.622077 mm")),
    Sketcher.Constraint("DistanceX", 9, 2, 9, 1, Q("4.796018 mm")),
    Sketcher.Constraint("DistanceX", 11, 1, 11, 2, Q("7.913032 mm")),
    Sketcher.Constraint("DistanceY", 6, 3, -1, 1, Q("2.190001 mm")),
    Sketcher.Constraint("DistanceX", 3, 3, 5, 3, Q("0.149599 mm")),
    Sketcher.Constraint("DistanceX", 4, 3, 6, 3, Q("1.264 mm")),
    Sketcher.Constraint("DistanceY", 1, 3, 7, 3, Q("0.529501 mm")),
    Sketcher.Constraint("DistanceX", 8, 3, 3, 3, Q("1.7253 mm")),
    Sketcher.Constraint("DistanceY", 1, 1, 5, 3, Q("2.840601 mm")),
    Sketcher.Constraint("DistanceX", 2, 1, 4, 3, Q("1.895802 mm")),
    Sketcher.Constraint("DistanceX", 3, 1, 7, 3, Q("0.361699 mm")),
    Sketcher.Constraint("DistanceY", 10, 2, 10, 1, Q("7.767816 mm")),
    Sketcher.Constraint("DistanceX", 1, 3, -1, 1, Q("10.05441 mm")),
    Sketcher.Constraint("DistanceY", 1, 3, -1, 1, Q("2.814452 mm")),
    Sketcher.Constraint("DistanceY", 3, 3, -1, 1, Q("2.771939 mm")),
    Sketcher.Constraint("DistanceX", 4, 3, -1, 1, Q("11.148659 mm")),
    Sketcher.Constraint("DistanceX", 7, 3, -1, 1, Q("10.939451 mm")),
    Sketcher.Constraint("DistanceY", 0, 2, -1, 1, Q("3.13173 mm")),
    Sketcher.Constraint("DistanceX", 1, 1, -1, 1, Q("9.595781 mm")),
])
pocket4 = body.newObject("PartDesign::Pocket", "Pocket003")
pocket4.Profile = sketch6
pocket4.setExpression("Length", "Params.pocket4_length")

# Sketch on XZ plane
sketch7 = body.newObject("Sketcher::SketchObject", "Sketch006")
sketch7.AttachmentSupport = (doc.getObject("XZ_Plane"), [""])
sketch7.MapMode = "FlatFace"
sketch7.AttachmentOffset = App.Placement(App.Vector(0, 0, -0.75 * 25.4), App.Rotation())
sketch7.addGeometry([
    Part.LineSegment(App.Vector(-2.54, -1.27, 0), App.Vector(-2.54, 1.27, 0)),
    Part.LineSegment(App.Vector(-2.54, 1.27, 0), App.Vector(2.54, 1.27, 0)),
    Part.LineSegment(App.Vector(2.54, 1.27, 0), App.Vector(2.54, -1.27, 0)),
    Part.LineSegment(App.Vector(2.54, -1.27, 0), App.Vector(-2.54, -1.27, 0)),
], False)
sketch7.addConstraint([
    Sketcher.Constraint("Coincident", 0, 2, 1, 1),
    Sketcher.Constraint("Coincident", 1, 2, 2, 1),
    Sketcher.Constraint("Coincident", 2, 2, 3, 1),
    Sketcher.Constraint("Coincident", 3, 2, 0, 1),
    Sketcher.Constraint("Vertical", 0),
    Sketcher.Constraint("Horizontal", 1),
    Sketcher.Constraint("Vertical", 2),
    Sketcher.Constraint("Horizontal", 3),
    Sketcher.Constraint("Symmetric", 0, 2, 2, 2, -1, 1),
    Sketcher.Constraint("DistanceX", 1, 1, 1, 2, Q("0.2 in")),
    Sketcher.Constraint("DistanceY", 0, 1, 0, 2, Q("0.1 in")),
])
sketch7.setExpression("Constraints[9]", "Params.sketch7_width")
sketch7.setExpression("Constraints[10]", "Params.sketch7_height")
pad3 = body.newObject("PartDesign::Pad", "Pad002")
pad3.Profile = sketch7
pad3.setExpression("Length", "Params.pad3_length")
pad3.Reversed = True

# Sketch on XY plane
sketch8 = body.newObject("Sketcher::SketchObject", "Sketch007")
sketch8.AttachmentSupport = (doc.getObject("XY_Plane"), [""])
sketch8.MapMode = "FlatFace"
sketch8.AttachmentOffset = App.Placement(App.Vector(0, 0, 0.375 * 25.4), App.Rotation())
sketch8.addGeometry([
    Part.Circle(App.Vector(0, 20.32, 0), App.Vector(0, 0, 1), 0.508),
    Part.ArcOfCircle(Part.Circle(App.Vector(0, 19.05, 0), App.Vector(0, 0, 1), 2.54), math.radians(0), math.radians(180)),
    Part.ArcOfCircle(Part.Circle(App.Vector(0, 20.472177, 0), App.Vector(0, 0, 1), 2.911046), math.radians(-29.245003), math.radians(209.245003)),
], False)
sketch8.addConstraint([
    Sketcher.Constraint("Coincident", 1, 1, 2, 1),
    Sketcher.Constraint("Coincident", 2, 2, 1, 2),
    Sketcher.Constraint("Symmetric", 1, 1, 2, 2, -2),
    Sketcher.Constraint("PointOnObject", 0, 3, -2),
    Sketcher.Constraint("Radius", 1, Q("0.1 in")),
    Sketcher.Constraint("Diameter", 0, Q("0.04 in")),
    Sketcher.Constraint("DistanceY", -1, 1, 0, 3, Q("0.8 in")),
    Sketcher.Constraint("DistanceY", -1, 1, 1, 3, Q("0.75 in")),
    Sketcher.Constraint("DistanceY", -1, 1, 1, 1, Q("0.75 in")),
    Sketcher.Constraint("Radius", 2, Q("2.911046 mm")),
])
sketch8.setExpression("Constraints[4]", "Params.sketch8_radius")
sketch8.setExpression("Constraints[5]", "Params.sketch8_diameter")
pocket5 = body.newObject("PartDesign::Pocket", "Pocket004")
pocket5.Profile = sketch8
pocket5.setExpression("Length", "Params.pocket5_length")

# Sketch on XZ plane
sketch9 = body.newObject("Sketcher::SketchObject", "Sketch008")
sketch9.AttachmentSupport = (doc.getObject("XZ_Plane"), [""])
sketch9.MapMode = "FlatFace"
sketch9.AttachmentOffset = App.Placement(App.Vector(0, 0, -0.75 * 25.4), App.Rotation())
sketch9.addGeometry([
    Part.LineSegment(App.Vector(-12.7, -6.35, 0), App.Vector(-12.7, 6.35, 0)),
    Part.LineSegment(App.Vector(-12.7, 6.35, 0), App.Vector(-3.175, 6.35, 0)),
    Part.LineSegment(App.Vector(-3.175, 6.35, 0), App.Vector(-3.175, -6.35, 0)),
    Part.LineSegment(App.Vector(-3.175, -6.35, 0), App.Vector(-12.7, -6.35, 0)),
], False)
sketch9.addConstraint([
    Sketcher.Constraint("Coincident", 0, 2, 1, 1),
    Sketcher.Constraint("Coincident", 1, 2, 2, 1),
    Sketcher.Constraint("Coincident", 2, 2, 3, 1),
    Sketcher.Constraint("Coincident", 3, 2, 0, 1),
    Sketcher.Constraint("Vertical", 0),
    Sketcher.Constraint("Horizontal", 1),
    Sketcher.Constraint("Vertical", 2),
    Sketcher.Constraint("Horizontal", 3),
    Sketcher.Constraint("DistanceY", 0, 1, 0, 2, Q("0.5 in")),
    Sketcher.Constraint("DistanceX", 0, 2, -1, 1, Q("0.5 in")),
    Sketcher.Constraint("DistanceX", 1, 1, 1, 2, Q("0.375 in")),
    Sketcher.Constraint("DistanceY", -1, 1, 0, 2, Q("0.25 in")),
])
sketch9.setExpression("Constraints[8]", "Params.sketch9_height")
sketch9.setExpression("Constraints[10]", "Params.sketch9_width")
pocket6 = body.newObject("PartDesign::Pocket", "Pocket005")
pocket6.Profile = sketch9
pocket6.setExpression("Length", "Params.pocket6_length")
pocket6.Reversed = True

doc.recompute()
